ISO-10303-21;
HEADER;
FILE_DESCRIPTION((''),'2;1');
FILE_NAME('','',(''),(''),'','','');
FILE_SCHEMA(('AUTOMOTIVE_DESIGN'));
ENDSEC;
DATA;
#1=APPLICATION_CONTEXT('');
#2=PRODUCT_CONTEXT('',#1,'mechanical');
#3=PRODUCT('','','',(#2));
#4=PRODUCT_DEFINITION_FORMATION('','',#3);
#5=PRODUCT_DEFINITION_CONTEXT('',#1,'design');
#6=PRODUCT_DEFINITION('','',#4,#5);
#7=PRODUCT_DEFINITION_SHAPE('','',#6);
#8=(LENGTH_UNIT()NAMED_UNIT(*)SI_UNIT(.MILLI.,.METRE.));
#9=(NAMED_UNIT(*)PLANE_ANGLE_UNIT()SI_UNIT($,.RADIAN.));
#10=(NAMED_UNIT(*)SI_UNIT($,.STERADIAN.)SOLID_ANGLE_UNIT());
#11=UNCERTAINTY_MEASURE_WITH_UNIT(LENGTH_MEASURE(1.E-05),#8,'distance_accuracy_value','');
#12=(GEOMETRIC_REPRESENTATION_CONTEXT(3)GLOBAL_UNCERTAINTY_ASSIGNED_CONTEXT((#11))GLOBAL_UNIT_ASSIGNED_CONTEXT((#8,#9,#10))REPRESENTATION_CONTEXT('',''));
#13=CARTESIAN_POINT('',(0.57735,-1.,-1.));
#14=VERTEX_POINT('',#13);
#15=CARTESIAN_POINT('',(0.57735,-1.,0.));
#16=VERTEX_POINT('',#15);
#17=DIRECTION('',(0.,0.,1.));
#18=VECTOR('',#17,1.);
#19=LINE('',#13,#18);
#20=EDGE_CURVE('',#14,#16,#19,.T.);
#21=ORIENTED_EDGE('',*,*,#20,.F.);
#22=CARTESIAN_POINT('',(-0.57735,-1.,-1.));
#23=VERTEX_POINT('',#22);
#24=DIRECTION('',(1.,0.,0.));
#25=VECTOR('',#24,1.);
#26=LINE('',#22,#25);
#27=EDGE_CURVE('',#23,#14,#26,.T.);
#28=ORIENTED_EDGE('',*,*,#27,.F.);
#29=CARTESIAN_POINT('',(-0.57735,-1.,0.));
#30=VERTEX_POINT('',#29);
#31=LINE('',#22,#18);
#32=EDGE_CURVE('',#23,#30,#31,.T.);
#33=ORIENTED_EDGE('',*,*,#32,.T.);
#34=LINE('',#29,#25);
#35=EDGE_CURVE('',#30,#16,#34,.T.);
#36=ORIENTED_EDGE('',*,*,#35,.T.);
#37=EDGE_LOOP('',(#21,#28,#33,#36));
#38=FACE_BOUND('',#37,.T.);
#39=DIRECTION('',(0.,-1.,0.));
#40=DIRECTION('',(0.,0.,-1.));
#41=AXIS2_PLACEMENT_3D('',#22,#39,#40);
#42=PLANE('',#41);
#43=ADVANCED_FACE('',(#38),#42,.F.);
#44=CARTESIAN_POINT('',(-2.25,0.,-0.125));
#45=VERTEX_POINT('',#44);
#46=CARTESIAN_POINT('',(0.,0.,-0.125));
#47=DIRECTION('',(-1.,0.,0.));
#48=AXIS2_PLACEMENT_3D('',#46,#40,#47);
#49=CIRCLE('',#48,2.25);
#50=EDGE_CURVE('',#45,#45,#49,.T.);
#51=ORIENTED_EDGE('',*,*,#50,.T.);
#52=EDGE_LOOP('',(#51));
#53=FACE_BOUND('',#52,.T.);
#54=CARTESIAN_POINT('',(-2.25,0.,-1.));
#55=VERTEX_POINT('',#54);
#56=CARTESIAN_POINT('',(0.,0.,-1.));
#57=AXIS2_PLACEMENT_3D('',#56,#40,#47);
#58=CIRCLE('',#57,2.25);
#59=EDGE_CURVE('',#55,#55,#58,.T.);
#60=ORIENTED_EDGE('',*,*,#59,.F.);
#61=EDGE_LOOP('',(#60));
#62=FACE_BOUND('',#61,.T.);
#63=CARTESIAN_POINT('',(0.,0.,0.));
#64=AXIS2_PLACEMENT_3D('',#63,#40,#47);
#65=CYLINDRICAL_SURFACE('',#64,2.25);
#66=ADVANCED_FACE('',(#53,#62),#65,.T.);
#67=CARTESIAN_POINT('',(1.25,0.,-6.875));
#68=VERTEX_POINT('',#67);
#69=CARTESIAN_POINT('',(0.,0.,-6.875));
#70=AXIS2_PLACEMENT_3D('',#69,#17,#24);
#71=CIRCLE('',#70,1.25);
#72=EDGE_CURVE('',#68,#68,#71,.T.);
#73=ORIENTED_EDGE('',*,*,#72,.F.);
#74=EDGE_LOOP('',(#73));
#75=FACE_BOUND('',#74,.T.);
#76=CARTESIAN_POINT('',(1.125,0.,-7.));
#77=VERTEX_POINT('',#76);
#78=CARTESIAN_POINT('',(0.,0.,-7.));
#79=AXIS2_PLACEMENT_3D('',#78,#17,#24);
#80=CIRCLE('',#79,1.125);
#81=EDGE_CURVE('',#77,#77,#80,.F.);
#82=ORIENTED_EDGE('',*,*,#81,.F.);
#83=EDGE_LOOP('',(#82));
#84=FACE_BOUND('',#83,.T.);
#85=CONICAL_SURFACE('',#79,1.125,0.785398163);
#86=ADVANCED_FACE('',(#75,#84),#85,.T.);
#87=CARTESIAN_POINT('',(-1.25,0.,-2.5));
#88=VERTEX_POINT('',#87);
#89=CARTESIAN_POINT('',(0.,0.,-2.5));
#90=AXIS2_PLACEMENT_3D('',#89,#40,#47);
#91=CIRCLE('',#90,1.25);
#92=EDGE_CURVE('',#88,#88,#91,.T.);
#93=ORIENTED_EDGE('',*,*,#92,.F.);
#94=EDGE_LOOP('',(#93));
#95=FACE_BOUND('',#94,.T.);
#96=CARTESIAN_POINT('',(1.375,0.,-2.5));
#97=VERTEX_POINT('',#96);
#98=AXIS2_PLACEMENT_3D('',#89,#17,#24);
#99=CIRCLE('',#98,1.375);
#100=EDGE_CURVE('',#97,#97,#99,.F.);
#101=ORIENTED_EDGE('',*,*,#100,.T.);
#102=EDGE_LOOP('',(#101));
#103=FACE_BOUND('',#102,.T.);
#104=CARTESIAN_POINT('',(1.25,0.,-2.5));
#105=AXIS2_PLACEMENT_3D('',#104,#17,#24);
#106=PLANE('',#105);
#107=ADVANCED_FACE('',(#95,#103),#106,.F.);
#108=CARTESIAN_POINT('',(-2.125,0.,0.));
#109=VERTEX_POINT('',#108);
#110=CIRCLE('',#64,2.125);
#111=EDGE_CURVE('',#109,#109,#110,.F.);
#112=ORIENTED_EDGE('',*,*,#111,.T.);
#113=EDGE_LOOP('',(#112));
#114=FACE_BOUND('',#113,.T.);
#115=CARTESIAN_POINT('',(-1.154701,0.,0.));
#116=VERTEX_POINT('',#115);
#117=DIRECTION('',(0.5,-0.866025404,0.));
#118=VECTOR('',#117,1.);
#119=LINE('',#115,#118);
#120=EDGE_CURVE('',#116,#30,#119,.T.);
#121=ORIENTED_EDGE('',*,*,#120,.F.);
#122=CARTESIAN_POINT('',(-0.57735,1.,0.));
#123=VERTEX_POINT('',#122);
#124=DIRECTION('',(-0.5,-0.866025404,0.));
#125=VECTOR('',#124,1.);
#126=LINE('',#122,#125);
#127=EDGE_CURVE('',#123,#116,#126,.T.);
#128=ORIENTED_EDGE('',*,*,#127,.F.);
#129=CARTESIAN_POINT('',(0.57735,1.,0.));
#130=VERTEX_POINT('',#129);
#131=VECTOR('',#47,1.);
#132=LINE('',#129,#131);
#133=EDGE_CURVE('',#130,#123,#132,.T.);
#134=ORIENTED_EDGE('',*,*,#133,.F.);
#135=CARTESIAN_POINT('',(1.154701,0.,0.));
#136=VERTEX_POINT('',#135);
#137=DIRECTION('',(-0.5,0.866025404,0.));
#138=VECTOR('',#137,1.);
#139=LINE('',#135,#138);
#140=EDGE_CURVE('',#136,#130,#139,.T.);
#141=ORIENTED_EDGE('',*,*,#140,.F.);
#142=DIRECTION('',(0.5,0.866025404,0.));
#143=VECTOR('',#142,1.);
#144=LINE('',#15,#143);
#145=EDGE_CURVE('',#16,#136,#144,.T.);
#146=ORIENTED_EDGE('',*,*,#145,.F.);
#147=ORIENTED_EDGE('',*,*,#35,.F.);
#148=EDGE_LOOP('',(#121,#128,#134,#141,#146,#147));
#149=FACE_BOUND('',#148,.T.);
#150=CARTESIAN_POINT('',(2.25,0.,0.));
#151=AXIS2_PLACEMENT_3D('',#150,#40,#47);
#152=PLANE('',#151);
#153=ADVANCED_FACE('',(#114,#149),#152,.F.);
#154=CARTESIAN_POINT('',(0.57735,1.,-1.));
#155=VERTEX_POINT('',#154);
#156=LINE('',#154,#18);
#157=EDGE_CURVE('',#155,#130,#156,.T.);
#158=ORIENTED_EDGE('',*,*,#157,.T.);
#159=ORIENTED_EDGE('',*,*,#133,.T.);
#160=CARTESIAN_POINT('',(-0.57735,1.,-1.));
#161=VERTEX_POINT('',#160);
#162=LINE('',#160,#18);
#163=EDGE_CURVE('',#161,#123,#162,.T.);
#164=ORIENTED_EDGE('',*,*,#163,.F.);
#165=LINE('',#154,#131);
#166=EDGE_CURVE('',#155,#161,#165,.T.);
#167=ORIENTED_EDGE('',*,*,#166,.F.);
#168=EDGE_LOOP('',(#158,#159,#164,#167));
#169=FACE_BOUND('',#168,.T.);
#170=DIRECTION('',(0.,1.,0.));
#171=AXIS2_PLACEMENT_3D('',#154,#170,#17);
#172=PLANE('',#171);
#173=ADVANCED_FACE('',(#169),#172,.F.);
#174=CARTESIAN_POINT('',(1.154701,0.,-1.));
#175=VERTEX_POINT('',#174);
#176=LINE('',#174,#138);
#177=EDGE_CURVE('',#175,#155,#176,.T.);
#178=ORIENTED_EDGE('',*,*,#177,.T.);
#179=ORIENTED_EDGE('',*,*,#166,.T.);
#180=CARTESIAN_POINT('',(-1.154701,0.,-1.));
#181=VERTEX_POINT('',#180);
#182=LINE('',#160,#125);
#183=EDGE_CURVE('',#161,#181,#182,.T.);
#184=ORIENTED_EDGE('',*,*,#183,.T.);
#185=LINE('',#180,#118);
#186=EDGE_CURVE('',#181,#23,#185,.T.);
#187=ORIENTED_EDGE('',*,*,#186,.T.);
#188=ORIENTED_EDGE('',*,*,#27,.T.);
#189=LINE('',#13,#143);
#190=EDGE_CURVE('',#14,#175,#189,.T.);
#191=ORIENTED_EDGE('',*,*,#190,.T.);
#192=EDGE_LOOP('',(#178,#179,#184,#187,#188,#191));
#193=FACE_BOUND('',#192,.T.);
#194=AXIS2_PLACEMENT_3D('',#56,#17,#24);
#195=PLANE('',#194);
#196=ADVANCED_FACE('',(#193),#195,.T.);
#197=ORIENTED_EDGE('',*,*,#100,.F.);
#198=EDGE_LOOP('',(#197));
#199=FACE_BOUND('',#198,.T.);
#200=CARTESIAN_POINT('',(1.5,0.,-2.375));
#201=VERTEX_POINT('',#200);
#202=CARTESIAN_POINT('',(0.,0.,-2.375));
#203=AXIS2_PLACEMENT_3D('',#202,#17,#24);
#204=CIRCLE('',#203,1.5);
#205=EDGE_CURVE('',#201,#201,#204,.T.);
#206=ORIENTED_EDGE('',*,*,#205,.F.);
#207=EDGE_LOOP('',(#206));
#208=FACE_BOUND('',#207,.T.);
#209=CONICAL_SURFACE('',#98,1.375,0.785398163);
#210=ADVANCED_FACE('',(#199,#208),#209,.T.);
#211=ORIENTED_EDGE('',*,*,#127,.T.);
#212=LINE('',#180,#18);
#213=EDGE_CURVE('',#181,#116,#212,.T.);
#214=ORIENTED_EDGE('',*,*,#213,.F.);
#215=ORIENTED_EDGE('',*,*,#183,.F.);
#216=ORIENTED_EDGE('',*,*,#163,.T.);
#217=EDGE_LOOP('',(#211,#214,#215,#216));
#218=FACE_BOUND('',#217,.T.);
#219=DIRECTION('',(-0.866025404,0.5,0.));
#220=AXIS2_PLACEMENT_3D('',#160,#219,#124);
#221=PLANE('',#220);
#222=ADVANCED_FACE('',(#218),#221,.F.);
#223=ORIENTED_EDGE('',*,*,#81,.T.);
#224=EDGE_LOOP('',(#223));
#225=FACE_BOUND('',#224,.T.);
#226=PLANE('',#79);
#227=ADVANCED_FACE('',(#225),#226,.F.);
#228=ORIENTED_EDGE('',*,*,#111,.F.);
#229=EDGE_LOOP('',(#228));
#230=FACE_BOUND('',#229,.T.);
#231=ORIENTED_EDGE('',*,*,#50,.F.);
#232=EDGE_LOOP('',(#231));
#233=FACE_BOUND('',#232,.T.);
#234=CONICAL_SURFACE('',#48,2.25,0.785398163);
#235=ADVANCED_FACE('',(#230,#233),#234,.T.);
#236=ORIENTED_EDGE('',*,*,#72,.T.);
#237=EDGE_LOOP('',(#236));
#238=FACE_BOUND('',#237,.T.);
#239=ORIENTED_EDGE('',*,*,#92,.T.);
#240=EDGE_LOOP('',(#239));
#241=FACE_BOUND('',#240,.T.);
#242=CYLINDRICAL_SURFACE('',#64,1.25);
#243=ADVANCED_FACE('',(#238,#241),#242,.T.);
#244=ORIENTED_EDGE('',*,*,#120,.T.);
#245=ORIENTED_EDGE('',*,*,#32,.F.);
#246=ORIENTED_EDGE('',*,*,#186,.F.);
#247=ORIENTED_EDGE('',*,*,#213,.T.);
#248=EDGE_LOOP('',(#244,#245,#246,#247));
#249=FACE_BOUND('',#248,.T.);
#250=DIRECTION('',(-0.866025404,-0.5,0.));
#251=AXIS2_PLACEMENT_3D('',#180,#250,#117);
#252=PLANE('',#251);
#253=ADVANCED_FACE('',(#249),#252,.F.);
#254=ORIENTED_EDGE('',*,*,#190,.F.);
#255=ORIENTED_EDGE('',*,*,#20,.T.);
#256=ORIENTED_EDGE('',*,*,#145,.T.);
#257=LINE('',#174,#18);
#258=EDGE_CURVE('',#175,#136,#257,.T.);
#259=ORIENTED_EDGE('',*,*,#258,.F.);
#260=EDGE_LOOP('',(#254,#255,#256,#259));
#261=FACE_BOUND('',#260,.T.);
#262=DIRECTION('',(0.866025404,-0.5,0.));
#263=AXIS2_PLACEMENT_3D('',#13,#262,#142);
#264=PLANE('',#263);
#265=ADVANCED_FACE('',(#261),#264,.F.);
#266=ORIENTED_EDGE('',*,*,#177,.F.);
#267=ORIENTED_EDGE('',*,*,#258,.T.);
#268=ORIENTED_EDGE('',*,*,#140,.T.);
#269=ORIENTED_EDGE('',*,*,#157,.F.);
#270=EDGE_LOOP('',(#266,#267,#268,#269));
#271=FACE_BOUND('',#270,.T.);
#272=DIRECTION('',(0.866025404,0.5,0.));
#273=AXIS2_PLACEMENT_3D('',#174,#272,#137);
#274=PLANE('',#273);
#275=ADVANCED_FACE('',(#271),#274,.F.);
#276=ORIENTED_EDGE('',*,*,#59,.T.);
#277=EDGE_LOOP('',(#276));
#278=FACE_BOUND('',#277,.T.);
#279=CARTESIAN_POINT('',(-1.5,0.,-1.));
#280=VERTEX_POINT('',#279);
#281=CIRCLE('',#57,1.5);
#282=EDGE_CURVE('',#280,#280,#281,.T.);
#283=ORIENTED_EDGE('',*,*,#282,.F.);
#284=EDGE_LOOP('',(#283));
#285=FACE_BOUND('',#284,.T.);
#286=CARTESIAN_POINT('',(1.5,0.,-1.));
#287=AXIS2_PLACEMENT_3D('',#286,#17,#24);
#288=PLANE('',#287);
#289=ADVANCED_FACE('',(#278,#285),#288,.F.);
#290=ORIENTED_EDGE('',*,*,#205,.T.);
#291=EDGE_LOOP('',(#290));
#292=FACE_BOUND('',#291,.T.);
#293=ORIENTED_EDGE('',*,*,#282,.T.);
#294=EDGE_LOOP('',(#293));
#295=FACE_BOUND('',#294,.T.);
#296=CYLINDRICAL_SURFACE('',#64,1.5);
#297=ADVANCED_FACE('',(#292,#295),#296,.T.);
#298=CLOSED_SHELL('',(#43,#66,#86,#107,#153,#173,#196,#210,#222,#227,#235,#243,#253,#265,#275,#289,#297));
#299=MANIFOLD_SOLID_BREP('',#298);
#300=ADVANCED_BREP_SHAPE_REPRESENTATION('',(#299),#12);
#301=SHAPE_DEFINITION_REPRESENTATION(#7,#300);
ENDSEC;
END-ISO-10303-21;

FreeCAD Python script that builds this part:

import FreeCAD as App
import Part
import Sketcher
Q = App.Units.Quantity


def edges_at(feature, points):
    """Names of the edges that pass closest to the given points."""
    edges = feature.Shape.Edges
    near = lambda p: min(range(len(edges)), key=lambda i: edges[i].distToShape(Part.Vertex(*p))[0])
    return sorted({f"Edge{near(p) + 1}" for p in points})

doc = App.newDocument("Part")
body = doc.addObject("PartDesign::Body", "Body")

# Sketch on XZ plane
sketch1 = body.newObject("Sketcher::SketchObject", "Sketch")
sketch1.AttachmentSupport = (doc.getObject("XZ_Plane"), [""])
sketch1.MapMode = "FlatFace"
sketch1.addGeometry([
    Part.LineSegment(App.Vector(0, -7, 0), App.Vector(0, 0, 0)),  # 0
    Part.LineSegment(App.Vector(0, 0, 0), App.Vector(2.25, 0, 0)),  # 1
    Part.LineSegment(App.Vector(2.25, 0, 0), App.Vector(2.25, -1, 0)),  # 2
    Part.LineSegment(App.Vector(2.25, -1, 0), App.Vector(1.5, -1, 0)),  # 3
    Part.LineSegment(App.Vector(1.5, -1, 0), App.Vector(1.5, -2.5, 0)),  # 4
    Part.LineSegment(App.Vector(1.5, -2.5, 0), App.Vector(1.25, -2.5, 0)),  # 5
    Part.LineSegment(App.Vector(1.25, -2.5, 0), App.Vector(1.25, -7, 0)),  # 6
    Part.LineSegment(App.Vector(1.25, -7, 0), App.Vector(0, -7, 0)),  # 7
], False)
sketch1.addConstraint([
    Sketcher.Constraint("Coincident", 0, 2, 1, 1),
    Sketcher.Constraint("Coincident", 1, 2, 2, 1),
    Sketcher.Constraint("Coincident", 2, 2, 3, 1),
    Sketcher.Constraint("Coincident", 3, 2, 4, 1),
    Sketcher.Constraint("Coincident", 4, 2, 5, 1),
    Sketcher.Constraint("Coincident", 5, 2, 6, 1),
    Sketcher.Constraint("Coincident", 6, 2, 7, 1),
    Sketcher.Constraint("Coincident", 7, 2, 0, 1),
    Sketcher.Constraint("Vertical", 0),
    Sketcher.Constraint("Horizontal", 1),
    Sketcher.Constraint("Vertical", 2),
    Sketcher.Constraint("Horizontal", 3),
    Sketcher.Constraint("Vertical", 4),
    Sketcher.Constraint("Horizontal", 5),
    Sketcher.Constraint("Vertical", 6),
    Sketcher.Constraint("Horizontal", 7),
    Sketcher.Constraint("Coincident", 0, 2, -1, 1),
    Sketcher.Constraint("DistanceY", 0, 1, 0, 2, 7.0),
    Sketcher.Constraint("DistanceY", 2, 2, 2, 1, 1.0),
    Sketcher.Constraint("DistanceY", 4, 2, 4, 1, 1.5),
    Sketcher.Constraint("DistanceX", 5, 2, 2, 2, 1.0),
    Sketcher.Constraint("DistanceX", 1, 1, 1, 2, 2.25),
    Sketcher.Constraint("DistanceX", 3, 2, 3, 1, 0.75),
])
revolution = body.newObject("PartDesign::Revolution", "Revolution")
revolution.Profile = sketch1
revolution.ReferenceAxis = (sketch1, ["V_Axis"])
revolution.Angle = 360

# Sketch on XY plane
sketch2 = body.newObject("Sketcher::SketchObject", "Sketch001")
sketch2.AttachmentSupport = (doc.getObject("XY_Plane"), [""])
sketch2.MapMode = "FlatFace"
sketch2.addGeometry([
    Part.LineSegment(App.Vector(1.154701, 0, 0), App.Vector(0.57735, 1, 0)),  # 0
    Part.LineSegment(App.Vector(0.57735, 1, 0), App.Vector(-0.57735, 1, 0)),  # 1
    Part.LineSegment(App.Vector(-0.57735, 1, 0), App.Vector(-1.154701, 0, 0)),  # 2
    Part.LineSegment(App.Vector(-1.154701, 0, 0), App.Vector(-0.57735, -1, 0)),  # 3
    Part.LineSegment(App.Vector(-0.57735, -1, 0), App.Vector(0.57735, -1, 0)),  # 4
    Part.LineSegment(App.Vector(0.57735, -1, 0), App.Vector(1.154701, 0, 0)),  # 5
], False)
sketch2.addConstraint([
    Sketcher.Constraint("Coincident", 0, 2, 1, 1),
    Sketcher.Constraint("Coincident", 1, 2, 2, 1),
    Sketcher.Constraint("Coincident", 2, 2, 3, 1),
    Sketcher.Constraint("Coincident", 3, 2, 4, 1),
    Sketcher.Constraint("Coincident", 4, 2, 5, 1),
    Sketcher.Constraint("Coincident", 5, 2, 0, 1),
    Sketcher.Constraint("Horizontal", 1),
    Sketcher.Constraint("Horizontal", 4),
    Sketcher.Constraint("Symmetric", 0, 2, 3, 2, -1, 1),
    Sketcher.Constraint("Symmetric", 2, 2, 5, 2, -1, 1),
    Sketcher.Constraint("PointOnObject", 2, 2, -1),
    Sketcher.Constraint("Parallel", 2, 5),
    Sketcher.Constraint("Vertical", 1, 2, 3, 2),
    Sketcher.Constraint("Angle", 0, Q("120 deg")),
    Sketcher.Constraint("DistanceY", -1, 1, 0, 2, 1.0),
    Sketcher.Constraint("DistanceX", 1, 2, 1, 1, 1.154701),
])
pocket1 = body.newObject("PartDesign::Pocket", "Pocket")
pocket1.Profile = sketch2
pocket1.Length = 1
doc.recompute()

chamfer = body.newObject("PartDesign::Chamfer", "Chamfer")
chamfer.Base = (pocket1, edges_at(pocket1, [(-2.25, 0, 0), (-1.5, 0, -2.5), (-1.25, 0, -7)]))
chamfer.Size = 0.125

doc.recompute()
